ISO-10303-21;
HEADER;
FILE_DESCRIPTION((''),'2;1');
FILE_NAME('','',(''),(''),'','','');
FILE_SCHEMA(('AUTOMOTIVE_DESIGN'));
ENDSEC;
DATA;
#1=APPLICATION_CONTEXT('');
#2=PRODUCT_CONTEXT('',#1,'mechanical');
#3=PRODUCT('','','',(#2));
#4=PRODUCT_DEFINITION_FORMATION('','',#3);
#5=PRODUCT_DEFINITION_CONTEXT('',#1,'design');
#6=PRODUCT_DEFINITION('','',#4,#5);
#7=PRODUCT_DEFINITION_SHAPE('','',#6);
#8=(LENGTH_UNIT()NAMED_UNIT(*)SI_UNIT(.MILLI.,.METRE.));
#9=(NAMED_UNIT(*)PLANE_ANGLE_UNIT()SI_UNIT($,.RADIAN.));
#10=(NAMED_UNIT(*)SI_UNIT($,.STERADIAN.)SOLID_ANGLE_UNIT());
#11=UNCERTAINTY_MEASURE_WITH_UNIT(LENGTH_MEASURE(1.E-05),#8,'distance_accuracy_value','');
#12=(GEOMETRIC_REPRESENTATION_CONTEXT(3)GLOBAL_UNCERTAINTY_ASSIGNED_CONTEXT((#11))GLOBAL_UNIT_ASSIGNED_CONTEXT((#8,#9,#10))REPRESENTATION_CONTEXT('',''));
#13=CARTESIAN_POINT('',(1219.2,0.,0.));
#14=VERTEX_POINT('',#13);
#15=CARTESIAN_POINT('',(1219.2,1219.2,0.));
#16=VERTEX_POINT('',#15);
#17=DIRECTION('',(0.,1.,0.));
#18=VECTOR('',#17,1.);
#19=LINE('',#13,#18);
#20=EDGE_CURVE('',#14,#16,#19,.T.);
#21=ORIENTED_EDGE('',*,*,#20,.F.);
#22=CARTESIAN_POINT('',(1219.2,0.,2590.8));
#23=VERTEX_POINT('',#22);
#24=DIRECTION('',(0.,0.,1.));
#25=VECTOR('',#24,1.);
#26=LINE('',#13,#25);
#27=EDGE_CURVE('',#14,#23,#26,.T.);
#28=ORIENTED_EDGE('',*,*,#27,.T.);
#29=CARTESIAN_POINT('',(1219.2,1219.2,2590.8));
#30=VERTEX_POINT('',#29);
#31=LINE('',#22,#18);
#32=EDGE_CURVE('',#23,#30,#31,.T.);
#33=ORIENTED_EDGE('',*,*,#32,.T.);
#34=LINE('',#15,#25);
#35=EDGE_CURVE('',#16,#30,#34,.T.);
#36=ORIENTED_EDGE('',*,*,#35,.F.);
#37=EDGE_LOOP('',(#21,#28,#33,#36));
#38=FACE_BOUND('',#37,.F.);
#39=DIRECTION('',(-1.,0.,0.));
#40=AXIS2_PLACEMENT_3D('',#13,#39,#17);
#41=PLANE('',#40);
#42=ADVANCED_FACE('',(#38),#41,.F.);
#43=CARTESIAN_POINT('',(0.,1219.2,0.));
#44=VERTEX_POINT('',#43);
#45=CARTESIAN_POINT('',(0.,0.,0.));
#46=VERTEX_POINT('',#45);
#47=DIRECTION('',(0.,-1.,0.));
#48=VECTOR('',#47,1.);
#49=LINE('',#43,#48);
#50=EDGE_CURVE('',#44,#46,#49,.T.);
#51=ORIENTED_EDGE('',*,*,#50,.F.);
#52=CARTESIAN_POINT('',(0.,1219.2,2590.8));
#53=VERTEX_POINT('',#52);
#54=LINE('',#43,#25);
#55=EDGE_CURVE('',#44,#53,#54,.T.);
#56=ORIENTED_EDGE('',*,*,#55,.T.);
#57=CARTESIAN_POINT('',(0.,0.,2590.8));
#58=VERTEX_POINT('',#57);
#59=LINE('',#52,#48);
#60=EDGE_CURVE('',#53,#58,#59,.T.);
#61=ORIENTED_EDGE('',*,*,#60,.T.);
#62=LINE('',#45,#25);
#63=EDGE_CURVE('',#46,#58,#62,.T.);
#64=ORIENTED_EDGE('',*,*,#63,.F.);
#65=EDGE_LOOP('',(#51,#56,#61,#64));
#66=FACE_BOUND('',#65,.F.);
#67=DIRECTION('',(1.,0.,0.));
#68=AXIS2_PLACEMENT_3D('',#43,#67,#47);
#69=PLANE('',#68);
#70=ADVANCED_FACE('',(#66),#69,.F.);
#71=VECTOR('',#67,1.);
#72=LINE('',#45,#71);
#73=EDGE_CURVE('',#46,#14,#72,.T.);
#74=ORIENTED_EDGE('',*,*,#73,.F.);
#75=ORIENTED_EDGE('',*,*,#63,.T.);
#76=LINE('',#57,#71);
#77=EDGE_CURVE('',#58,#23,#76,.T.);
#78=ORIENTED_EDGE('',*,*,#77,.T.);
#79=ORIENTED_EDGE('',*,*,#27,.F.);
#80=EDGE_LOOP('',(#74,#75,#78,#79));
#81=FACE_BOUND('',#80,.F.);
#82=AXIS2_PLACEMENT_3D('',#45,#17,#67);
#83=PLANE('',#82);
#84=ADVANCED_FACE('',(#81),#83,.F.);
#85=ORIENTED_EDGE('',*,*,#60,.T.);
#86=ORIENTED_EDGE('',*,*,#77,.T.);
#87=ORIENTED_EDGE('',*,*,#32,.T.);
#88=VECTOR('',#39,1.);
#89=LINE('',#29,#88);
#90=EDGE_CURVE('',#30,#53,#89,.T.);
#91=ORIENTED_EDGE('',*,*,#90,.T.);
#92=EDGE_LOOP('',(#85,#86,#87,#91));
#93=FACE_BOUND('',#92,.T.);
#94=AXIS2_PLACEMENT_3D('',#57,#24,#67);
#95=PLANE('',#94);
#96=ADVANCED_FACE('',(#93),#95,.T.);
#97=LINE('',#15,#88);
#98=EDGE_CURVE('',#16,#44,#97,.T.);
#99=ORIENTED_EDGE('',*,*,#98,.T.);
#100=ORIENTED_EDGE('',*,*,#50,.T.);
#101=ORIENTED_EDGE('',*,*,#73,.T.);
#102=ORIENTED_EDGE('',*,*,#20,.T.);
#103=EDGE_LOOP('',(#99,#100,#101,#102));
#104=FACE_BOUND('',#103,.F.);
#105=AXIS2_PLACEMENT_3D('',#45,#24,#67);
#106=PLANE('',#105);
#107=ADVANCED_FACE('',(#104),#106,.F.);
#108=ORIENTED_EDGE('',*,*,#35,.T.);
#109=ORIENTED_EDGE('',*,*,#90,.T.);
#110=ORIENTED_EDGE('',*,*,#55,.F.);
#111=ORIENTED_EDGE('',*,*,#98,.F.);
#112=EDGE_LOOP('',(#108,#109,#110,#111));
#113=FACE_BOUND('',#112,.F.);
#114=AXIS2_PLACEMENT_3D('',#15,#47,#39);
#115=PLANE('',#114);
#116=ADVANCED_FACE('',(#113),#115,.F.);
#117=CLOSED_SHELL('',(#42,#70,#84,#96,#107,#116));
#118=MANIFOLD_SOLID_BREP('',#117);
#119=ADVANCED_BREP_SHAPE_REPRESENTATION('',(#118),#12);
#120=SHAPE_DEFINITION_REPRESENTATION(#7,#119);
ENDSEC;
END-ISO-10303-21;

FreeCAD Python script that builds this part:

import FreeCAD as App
import Part
import Sketcher

V = App.Vector
Q = App.Units.Quantity

doc = App.newDocument("Part")
body = doc.addObject("PartDesign::Body", "Body")

sketch1 = body.newObject("Sketcher::SketchObject", "Sketch")
sketch1.AttachmentSupport = (doc.getObject("XY_Plane"), [""])
sketch1.MapMode = "FlatFace"
sketch1.addGeometry([
    Part.LineSegment(V(0, 1219, 0), V(0, 0, 0)),
    Part.LineSegment(V(0, 0, 0), V(1219, 0, 0)),
    Part.LineSegment(V(1219, 0, 0), V(1219, 1219, 0)),
    Part.LineSegment(V(1219, 1219, 0), V(0, 1219, 0)),
], False)
sketch1.addConstraint([
    Sketcher.Constraint("Coincident", 0, 2, 1, 1),
    Sketcher.Constraint("Coincident", 1, 2, 2, 1),
    Sketcher.Constraint("Coincident", 2, 2, 3, 1),
    Sketcher.Constraint("Coincident", 3, 2, 0, 1),
    Sketcher.Constraint("Vertical", 0),
    Sketcher.Constraint("Horizontal", 1),
    Sketcher.Constraint("Vertical", 2),
    Sketcher.Constraint("Horizontal", 3),
    Sketcher.Constraint("Coincident", 0, 2, -1, 1),
    Sketcher.Constraint("Equal", 3, 0),
    Sketcher.Constraint("DistanceX", 1, 1, 1, 2, Q("48 in")),
])
pad1 = body.newObject("PartDesign::Pad", "Pad")
pad1.Profile = sketch1
pad1.Length = Q("102 in")

doc.recompute()
